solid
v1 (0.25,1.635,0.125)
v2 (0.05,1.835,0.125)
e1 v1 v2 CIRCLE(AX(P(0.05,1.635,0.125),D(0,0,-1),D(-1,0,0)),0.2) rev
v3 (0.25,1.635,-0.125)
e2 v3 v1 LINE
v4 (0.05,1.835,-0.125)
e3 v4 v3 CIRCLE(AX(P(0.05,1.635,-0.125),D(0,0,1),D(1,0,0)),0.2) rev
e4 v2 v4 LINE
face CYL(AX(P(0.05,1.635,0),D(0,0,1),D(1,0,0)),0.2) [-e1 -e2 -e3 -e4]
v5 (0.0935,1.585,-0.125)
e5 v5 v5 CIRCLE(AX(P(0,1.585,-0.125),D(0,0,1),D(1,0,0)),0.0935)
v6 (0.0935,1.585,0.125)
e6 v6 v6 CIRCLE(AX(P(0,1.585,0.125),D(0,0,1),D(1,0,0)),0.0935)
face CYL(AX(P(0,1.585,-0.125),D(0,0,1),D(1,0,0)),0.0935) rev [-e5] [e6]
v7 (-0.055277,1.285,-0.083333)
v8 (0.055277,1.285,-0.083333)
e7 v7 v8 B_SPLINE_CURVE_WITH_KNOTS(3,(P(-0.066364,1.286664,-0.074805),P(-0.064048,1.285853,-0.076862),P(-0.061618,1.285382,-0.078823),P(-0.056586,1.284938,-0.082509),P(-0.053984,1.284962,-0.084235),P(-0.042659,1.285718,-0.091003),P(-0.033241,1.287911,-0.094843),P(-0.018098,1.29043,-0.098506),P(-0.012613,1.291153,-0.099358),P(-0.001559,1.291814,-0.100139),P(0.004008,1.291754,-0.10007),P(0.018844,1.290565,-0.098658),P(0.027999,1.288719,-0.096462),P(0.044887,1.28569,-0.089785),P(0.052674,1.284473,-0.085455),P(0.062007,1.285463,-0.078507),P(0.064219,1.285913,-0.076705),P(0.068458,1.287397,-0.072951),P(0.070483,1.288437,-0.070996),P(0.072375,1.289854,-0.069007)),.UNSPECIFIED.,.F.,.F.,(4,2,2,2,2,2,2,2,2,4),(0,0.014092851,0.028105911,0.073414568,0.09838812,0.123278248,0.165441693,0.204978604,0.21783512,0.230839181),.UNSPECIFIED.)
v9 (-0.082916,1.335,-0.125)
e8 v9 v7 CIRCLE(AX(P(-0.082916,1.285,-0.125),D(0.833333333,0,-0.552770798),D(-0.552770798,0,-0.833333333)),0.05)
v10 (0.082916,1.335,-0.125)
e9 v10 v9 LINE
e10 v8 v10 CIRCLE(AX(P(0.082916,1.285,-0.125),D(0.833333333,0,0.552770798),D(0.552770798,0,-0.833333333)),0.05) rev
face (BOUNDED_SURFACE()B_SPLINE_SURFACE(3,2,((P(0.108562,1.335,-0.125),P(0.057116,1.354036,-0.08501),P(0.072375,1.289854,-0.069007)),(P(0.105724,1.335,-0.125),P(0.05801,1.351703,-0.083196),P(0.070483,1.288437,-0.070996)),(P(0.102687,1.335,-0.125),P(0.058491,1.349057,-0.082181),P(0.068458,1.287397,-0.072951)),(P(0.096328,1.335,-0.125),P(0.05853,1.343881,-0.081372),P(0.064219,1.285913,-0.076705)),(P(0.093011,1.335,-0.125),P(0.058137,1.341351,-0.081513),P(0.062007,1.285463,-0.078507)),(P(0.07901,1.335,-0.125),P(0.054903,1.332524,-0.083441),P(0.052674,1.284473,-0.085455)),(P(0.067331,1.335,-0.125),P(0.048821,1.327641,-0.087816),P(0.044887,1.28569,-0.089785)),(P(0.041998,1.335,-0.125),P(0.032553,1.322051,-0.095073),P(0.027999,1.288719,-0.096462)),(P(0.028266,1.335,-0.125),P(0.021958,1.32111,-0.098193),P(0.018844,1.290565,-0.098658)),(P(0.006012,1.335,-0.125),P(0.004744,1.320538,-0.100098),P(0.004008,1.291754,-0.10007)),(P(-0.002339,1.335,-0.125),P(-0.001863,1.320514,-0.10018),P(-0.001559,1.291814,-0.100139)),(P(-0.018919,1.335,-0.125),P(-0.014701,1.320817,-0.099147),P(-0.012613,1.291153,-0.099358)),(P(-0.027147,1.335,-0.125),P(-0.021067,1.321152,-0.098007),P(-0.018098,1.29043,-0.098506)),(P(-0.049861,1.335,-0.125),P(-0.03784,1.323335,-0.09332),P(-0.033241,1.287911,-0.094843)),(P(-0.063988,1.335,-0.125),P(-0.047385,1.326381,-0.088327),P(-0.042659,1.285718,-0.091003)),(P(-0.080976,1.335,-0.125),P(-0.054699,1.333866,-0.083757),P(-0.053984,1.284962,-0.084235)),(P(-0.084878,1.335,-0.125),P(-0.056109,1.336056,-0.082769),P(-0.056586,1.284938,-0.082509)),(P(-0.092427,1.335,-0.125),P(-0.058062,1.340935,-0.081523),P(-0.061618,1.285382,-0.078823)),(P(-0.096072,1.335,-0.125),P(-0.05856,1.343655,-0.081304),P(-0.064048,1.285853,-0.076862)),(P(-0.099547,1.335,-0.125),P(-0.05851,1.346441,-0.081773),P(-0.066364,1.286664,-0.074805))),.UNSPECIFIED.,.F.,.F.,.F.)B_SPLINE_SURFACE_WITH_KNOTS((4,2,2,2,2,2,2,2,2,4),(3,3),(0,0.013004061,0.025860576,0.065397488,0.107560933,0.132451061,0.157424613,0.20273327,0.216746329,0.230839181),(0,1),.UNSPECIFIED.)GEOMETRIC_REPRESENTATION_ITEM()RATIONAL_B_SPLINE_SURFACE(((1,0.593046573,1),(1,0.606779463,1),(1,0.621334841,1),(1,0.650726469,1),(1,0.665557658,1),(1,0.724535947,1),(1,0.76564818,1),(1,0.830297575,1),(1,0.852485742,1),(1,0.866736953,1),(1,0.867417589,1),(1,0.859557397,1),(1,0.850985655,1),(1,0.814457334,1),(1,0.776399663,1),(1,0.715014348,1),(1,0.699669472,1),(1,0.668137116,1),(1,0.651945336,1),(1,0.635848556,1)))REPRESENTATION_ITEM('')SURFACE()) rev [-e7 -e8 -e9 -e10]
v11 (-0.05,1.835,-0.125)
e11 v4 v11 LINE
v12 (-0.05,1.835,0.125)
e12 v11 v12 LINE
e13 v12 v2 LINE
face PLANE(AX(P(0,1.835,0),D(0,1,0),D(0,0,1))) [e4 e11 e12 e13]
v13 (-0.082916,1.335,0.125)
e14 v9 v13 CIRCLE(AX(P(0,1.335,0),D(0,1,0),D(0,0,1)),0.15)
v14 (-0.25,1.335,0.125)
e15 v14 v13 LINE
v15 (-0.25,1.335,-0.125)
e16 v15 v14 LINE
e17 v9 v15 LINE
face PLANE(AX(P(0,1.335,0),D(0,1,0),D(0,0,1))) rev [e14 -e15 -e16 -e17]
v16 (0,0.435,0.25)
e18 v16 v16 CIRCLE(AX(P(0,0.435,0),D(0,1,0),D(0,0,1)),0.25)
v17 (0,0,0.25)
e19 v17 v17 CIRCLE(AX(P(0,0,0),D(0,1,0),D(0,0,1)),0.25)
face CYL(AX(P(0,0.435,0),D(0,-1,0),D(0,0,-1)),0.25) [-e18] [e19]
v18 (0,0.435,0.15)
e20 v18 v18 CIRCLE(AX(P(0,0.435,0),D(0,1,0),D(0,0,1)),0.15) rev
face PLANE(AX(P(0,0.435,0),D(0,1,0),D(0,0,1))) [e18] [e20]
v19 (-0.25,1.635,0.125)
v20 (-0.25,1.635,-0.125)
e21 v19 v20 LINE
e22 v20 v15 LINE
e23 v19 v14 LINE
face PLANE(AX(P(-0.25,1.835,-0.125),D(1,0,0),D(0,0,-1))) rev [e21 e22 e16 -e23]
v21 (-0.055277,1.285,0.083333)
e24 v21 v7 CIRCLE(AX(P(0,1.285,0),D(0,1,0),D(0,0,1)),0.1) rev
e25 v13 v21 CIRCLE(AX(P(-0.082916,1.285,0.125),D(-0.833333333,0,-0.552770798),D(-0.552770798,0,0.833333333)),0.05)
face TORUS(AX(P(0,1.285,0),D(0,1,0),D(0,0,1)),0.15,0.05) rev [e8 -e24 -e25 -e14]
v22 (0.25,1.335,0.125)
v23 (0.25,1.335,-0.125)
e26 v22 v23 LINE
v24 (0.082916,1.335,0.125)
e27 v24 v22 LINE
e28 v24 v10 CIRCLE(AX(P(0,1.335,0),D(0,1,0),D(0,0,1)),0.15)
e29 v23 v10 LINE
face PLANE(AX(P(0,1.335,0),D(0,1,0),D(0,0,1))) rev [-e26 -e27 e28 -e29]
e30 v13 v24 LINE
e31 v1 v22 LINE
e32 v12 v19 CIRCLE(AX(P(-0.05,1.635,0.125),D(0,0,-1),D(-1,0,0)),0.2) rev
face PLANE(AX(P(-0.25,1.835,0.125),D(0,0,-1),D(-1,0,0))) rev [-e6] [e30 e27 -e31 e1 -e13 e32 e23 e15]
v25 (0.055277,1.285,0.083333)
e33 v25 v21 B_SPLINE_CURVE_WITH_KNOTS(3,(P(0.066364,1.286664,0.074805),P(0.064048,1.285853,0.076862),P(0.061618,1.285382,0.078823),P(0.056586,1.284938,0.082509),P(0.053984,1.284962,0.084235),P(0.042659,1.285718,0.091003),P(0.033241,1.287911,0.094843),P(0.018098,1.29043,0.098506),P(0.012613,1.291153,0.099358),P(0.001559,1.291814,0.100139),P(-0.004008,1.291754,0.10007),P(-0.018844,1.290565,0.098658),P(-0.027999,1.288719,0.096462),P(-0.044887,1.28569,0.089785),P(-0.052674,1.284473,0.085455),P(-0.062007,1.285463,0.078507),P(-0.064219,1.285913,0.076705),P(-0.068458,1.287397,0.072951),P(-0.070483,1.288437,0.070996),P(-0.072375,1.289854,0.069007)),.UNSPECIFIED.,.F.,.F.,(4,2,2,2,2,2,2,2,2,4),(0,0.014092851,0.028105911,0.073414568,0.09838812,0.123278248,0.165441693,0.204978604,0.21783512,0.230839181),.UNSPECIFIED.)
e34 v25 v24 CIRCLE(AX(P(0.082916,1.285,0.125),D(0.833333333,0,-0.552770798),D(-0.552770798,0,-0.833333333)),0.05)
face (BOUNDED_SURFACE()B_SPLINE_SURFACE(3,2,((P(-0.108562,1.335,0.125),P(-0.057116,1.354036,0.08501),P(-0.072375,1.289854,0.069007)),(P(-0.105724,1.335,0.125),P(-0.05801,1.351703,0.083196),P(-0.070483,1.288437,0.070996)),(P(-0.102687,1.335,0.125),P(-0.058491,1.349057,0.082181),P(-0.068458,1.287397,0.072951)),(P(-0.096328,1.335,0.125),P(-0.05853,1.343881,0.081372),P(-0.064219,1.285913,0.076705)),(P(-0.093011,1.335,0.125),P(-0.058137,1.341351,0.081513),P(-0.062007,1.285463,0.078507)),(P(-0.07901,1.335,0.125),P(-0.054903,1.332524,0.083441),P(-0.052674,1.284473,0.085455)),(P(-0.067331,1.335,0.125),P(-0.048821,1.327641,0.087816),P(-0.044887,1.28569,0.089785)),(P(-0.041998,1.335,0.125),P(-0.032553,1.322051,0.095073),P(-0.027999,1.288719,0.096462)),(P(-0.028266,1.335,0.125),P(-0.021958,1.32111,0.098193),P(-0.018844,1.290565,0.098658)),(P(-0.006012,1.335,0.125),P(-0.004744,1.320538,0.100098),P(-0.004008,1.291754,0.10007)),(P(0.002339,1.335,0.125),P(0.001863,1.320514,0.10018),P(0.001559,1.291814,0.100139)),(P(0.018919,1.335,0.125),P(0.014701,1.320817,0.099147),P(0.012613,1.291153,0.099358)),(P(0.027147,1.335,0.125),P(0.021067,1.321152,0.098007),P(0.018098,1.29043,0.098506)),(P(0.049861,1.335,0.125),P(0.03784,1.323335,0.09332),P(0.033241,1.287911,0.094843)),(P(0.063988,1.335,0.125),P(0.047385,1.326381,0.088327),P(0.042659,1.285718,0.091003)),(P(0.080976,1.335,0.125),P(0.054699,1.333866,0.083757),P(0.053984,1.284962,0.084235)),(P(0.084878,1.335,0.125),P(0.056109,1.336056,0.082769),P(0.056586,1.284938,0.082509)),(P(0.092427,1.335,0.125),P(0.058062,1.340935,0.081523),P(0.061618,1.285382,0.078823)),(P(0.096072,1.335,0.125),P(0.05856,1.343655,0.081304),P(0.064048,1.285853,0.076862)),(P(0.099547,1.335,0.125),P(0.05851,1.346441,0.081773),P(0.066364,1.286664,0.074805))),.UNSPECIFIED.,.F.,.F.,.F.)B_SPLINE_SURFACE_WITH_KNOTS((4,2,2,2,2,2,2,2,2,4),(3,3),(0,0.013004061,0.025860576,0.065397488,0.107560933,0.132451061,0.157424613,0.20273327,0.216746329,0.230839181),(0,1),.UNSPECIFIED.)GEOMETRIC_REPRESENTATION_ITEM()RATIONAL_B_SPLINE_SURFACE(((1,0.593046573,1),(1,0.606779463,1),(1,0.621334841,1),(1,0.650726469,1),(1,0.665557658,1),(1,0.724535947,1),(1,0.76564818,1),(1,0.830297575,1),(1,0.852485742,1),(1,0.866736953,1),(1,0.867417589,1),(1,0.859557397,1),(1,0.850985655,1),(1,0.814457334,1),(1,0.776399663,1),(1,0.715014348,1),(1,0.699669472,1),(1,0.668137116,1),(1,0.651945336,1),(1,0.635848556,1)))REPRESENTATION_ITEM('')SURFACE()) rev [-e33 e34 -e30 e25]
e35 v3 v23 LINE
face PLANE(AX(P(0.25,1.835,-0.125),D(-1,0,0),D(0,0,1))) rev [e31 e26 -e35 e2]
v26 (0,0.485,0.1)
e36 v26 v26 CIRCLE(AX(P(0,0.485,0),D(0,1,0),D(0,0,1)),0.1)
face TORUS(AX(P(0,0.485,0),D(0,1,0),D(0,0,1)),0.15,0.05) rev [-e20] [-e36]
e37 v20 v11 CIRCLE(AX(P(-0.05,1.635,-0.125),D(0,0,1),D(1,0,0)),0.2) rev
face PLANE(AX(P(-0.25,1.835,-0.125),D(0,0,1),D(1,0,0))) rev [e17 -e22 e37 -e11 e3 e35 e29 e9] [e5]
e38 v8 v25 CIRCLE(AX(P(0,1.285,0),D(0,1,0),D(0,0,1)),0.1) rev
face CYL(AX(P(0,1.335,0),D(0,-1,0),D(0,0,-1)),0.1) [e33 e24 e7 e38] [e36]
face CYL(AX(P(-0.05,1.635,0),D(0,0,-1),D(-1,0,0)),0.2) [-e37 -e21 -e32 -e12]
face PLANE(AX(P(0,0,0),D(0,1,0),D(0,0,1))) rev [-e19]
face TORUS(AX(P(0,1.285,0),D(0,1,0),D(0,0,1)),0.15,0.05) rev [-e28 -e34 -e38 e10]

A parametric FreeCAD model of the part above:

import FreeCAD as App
import Part
import Sketcher
from FreeCAD import Vector


def edges_at(feature, points):
    """Names of the edges that pass closest to the given points."""
    edges = feature.Shape.Edges
    near = lambda p: min(range(len(edges)), key=lambda i: edges[i].distToShape(Part.Vertex(*p))[0])
    return sorted({f"Edge{near(p) + 1}" for p in points})


def add_polygon(sketch, points):
    """Adds a closed chain of lines whose ends are joined by coincident constraints."""
    first, n = sketch.GeometryCount, len(points)
    for a, b in zip(points, points[1:] + points[:1]):
        sketch.addGeometry(Part.LineSegment(App.Vector(*a, 0), App.Vector(*b, 0)), False)
    for i in range(n):
        sketch.addConstraint(Sketcher.Constraint("Coincident", first + i, 2, first + (i + 1) % n, 1))

doc = App.newDocument("Part")
body = doc.addObject("PartDesign::Body", "Body")

# Sketch on XZ plane
sketch1 = body.newObject("Sketcher::SketchObject", "Sketch")
sketch1.AttachmentSupport = (doc.getObject("XZ_Plane"), [""])
sketch1.MapMode = "FlatFace"
sketch1.addGeometry(Part.Circle(Vector(0, 0, 0), Vector(0, 0, 1), 0.25), False)
sketch1.addConstraint([
    Sketcher.Constraint("Coincident", 0, 3, -1, 1),
    Sketcher.Constraint("Diameter", 0, 0.5),
])
pad1 = body.newObject("PartDesign::Pad", "Pad")
pad1.Profile = sketch1
pad1.Length = 0.435
pad1.Reversed = True

# Sketch on XZ plane
sketch2 = body.newObject("Sketcher::SketchObject", "Sketch001")
sketch2.AttachmentSupport = (doc.getObject("XZ_Plane"), [""])
sketch2.MapMode = "FlatFace"
sketch2.AttachmentOffset = App.Placement(Vector(0, 0, -0.435), App.Rotation())
sketch2.addGeometry(Part.Circle(Vector(0, 0, 0), Vector(0, 0, 1), 0.1), False)
sketch2.addConstraint([
    Sketcher.Constraint("Coincident", 0, 3, -1, 1),
    Sketcher.Constraint("Diameter", 0, 0.2),
])
pad2 = body.newObject("PartDesign::Pad", "Pad001")
pad2.Profile = sketch2
pad2.Length = 0.9
pad2.Reversed = True

# Sketch on XZ plane
sketch3 = body.newObject("Sketcher::SketchObject", "Sketch002")
sketch3.AttachmentSupport = (doc.getObject("XZ_Plane"), [""])
sketch3.MapMode = "FlatFace"
sketch3.AttachmentOffset = App.Placement(Vector(0, 0, -1.335), App.Rotation())
add_polygon(sketch3, [(-0.25, -0.12), (-0.25, 0.12), (0.25, 0.12), (0.25, -0.12)])  # lines 0-3
sketch3.addConstraint([
    Sketcher.Constraint("Vertical", 0),
    Sketcher.Constraint("Horizontal", 1),
    Sketcher.Constraint("Vertical", 2),
    Sketcher.Constraint("Horizontal", 3),
    Sketcher.Constraint("Symmetric", 0, 2, 2, 2, -1, 1),
    Sketcher.Constraint("DistanceX", 1, 1, 1, 2, 0.5),
    Sketcher.Constraint("DistanceY", 0, 1, 0, 2, 0.25),
])
pad3 = body.newObject("PartDesign::Pad", "Pad002")
pad3.Profile = sketch3
pad3.Length = 0.5
pad3.Reversed = True
doc.recompute()

fillet = body.newObject("PartDesign::Fillet", "Fillet")
fillet.Base = (pad3, edges_at(pad3, [(0.25, 1.835, 0)]))
fillet.Radius = 0.2
doc.recompute()

fillet2 = body.newObject("PartDesign::Fillet", "Fillet001")
fillet2.Base = (fillet, edges_at(fillet, [(-0.25, 1.835, 0)]))
fillet2.Radius = 0.2

# Sketch on XY plane
sketch4 = body.newObject("Sketcher::SketchObject", "Sketch003")
sketch4.AttachmentSupport = (doc.getObject("XY_Plane"), [""])
sketch4.MapMode = "FlatFace"
sketch4.AttachmentOffset = App.Placement(Vector(0, 0, 0.125), App.Rotation())
sketch4.addGeometry(Part.Circle(Vector(0, 1.58, 0), Vector(0, 0, 1), 0.09), False)
sketch4.addConstraint([
    Sketcher.Constraint("PointOnObject", 0, 3, -2),
    Sketcher.Constraint("Diameter", 0, 0.187),
    Sketcher.Constraint("DistanceY", -1, 1, 0, 3, 1.585),
])
pocket1 = body.newObject("PartDesign::Pocket", "Pocket")
pocket1.Profile = sketch4
pocket1.Length = 0.25
doc.recompute()

fillet3 = body.newObject("PartDesign::Fillet", "Fillet002")
fillet3.Base = (pocket1, edges_at(pocket1, [(0, 1.335, -0.1)]))
fillet3.Radius = 0.05
doc.recompute()

fillet4 = body.newObject("PartDesign::Fillet", "Fillet003")
fillet4.Base = (fillet3, edges_at(fillet3, [(0, 0.435, -0.1)]))
fillet4.Radius = 0.05

doc.recompute()
